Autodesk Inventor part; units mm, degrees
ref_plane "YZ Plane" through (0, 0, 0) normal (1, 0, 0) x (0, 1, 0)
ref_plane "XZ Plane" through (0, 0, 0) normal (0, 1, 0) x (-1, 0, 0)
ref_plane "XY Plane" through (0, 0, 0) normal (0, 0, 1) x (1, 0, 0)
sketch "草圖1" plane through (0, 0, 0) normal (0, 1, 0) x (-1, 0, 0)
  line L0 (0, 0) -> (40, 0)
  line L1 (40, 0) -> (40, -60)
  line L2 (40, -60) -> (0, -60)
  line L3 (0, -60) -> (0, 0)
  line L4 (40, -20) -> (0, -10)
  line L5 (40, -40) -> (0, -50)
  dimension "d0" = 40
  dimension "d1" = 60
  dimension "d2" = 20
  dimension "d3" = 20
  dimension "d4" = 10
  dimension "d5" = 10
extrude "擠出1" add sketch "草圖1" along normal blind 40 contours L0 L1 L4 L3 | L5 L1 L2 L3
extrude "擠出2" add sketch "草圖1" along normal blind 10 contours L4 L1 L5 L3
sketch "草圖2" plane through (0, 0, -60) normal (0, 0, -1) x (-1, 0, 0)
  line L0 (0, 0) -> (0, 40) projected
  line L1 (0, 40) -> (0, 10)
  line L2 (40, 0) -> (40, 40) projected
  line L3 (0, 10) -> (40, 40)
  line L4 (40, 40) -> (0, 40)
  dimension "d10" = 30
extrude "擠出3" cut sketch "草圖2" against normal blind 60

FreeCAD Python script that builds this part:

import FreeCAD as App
import Part
import Sketcher
Q = App.Units.Quantity


def add_polygon(sketch, points):
    """Adds a closed chain of lines whose ends are joined by coincident constraints."""
    first, n = sketch.GeometryCount, len(points)
    for a, b in zip(points, points[1:] + points[:1]):
        sketch.addGeometry(Part.LineSegment(App.Vector(*a, 0), App.Vector(*b, 0)), False)
    for i in range(n):
        sketch.addConstraint(Sketcher.Constraint("Coincident", first + i, 2, first + (i + 1) % n, 1))

doc = App.newDocument("Part")
body = doc.addObject("PartDesign::Body", "Body")
body.AllowCompound = True

sketch1 = body.newObject("Sketcher::SketchObject", "Sketch")
sketch1.AttachmentSupport = (doc.getObject("XZ_Plane"), [""])
sketch1.MapMode = "FlatFace"
add_polygon(sketch1, [(-40, 0), (0, 0), (0, -10), (-40, -20)])
add_polygon(sketch1, [(-40, -40), (0, -50), (0, -60), (-40, -60)])
sketch1.addConstraint([
    Sketcher.Constraint("Horizontal", 0),
    Sketcher.Constraint("Vertical", 1),
    Sketcher.Constraint("Vertical", 3),
    Sketcher.Constraint("Vertical", 5),
    Sketcher.Constraint("Horizontal", 6),
    Sketcher.Constraint("Vertical", 7),
    Sketcher.Constraint("Coincident", 0, 2, -1, 1),
    Sketcher.Constraint("PointOnObject", 4, 2, -2),
    Sketcher.Constraint("Vertical", 3, 2, 6, 2),
    Sketcher.Constraint("Equal", 1, 5),
    Sketcher.Constraint("Equal", 3, 7),
    Sketcher.Constraint("DistanceX", 0, 1, 0, 2, Q("40 mm")),
    Sketcher.Constraint("DistanceY", 1, 2, 1, 1, Q("10 mm")),
    Sketcher.Constraint("DistanceY", 3, 1, 3, 2, Q("20 mm")),
    Sketcher.Constraint("DistanceY", 5, 2, -1, 1, Q("60 mm")),
])
pad1 = body.newObject("PartDesign::Pad", "Pad")
pad1.Profile = sketch1
pad1.Length = 40
pad1.Reversed = True

sketch2 = body.newObject("Sketcher::SketchObject", "Sketch001")
sketch2.AttachmentSupport = (doc.getObject("XZ_Plane"), [""])
sketch2.MapMode = "FlatFace"
add_polygon(sketch2, [(-40, -20), (0, -10), (0, -50), (-40, -40)])
sketch2.addConstraint([
    Sketcher.Constraint("Vertical", 1),
    Sketcher.Constraint("Vertical", 3),
    Sketcher.Constraint("PointOnObject", 0, 2, -2),
    Sketcher.Constraint("Equal", 0, 2),
    Sketcher.Constraint("DistanceY", 1, 2, 1, 1, Q("40 mm")),
    Sketcher.Constraint("DistanceY", 3, 1, 3, 2, Q("20 mm")),
    Sketcher.Constraint("DistanceY", 0, 2, -1, 1, Q("10 mm")),
    Sketcher.Constraint("DistanceX", 2, 2, -1, 1, Q("40 mm")),
])
pad2 = body.newObject("PartDesign::Pad", "Pad001")
pad2.Profile = sketch2
pad2.Length = 10
pad2.Reversed = True

sketch3 = body.newObject("Sketcher::SketchObject", "Sketch002")
sketch3.AttachmentSupport = (doc.getObject("XY_Plane"), [""])
sketch3.MapMode = "FlatFace"
sketch3.AttachmentOffset = App.Placement(App.Vector(0, 0, -60), App.Rotation())
add_polygon(sketch3, [(0, 40), (0, 10), (-40, 40)])
sketch3.addConstraint([
    Sketcher.Constraint("Vertical", 0),
    Sketcher.Constraint("Horizontal", 2),
    Sketcher.Constraint("PointOnObject", 0, 2, -2),
    Sketcher.Constraint("DistanceY", 0, 2, 0, 1, Q("30 mm")),
    Sketcher.Constraint("DistanceX", 2, 1, 2, 2, Q("40 mm")),
    Sketcher.Constraint("DistanceY", -1, 1, 0, 2, Q("10 mm")),
])
pocket1 = body.newObject("PartDesign::Pocket", "Pocket")
pocket1.Profile = sketch3
pocket1.Length = 60
pocket1.Reversed = True

doc.recompute()
